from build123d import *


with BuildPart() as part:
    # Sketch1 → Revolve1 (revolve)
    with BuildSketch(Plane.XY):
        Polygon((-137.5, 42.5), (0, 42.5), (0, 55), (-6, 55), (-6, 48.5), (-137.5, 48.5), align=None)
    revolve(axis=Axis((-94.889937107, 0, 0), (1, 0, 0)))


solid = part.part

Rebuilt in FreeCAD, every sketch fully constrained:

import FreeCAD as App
import Part
import Sketcher

V = App.Vector

doc = App.newDocument("Part")
params = doc.addObject("Spreadsheet::Sheet", "Params")
for row, (alias, value) in enumerate([
    ("sketch1_width", "6 mm"),
    ("sketch1_width2", "137.5 mm"),
    ("sketch1_height", "12.5 mm"),
    ("revolution_angle", "360 deg"),
], start=1):
    params.set(f"A{row}", alias)
    params.set(f"B{row}", "=" + value)
    params.setAlias(f"B{row}", alias)

body = doc.addObject("PartDesign::Body", "Body")

# Sketch on XY plane
sketch1 = doc.addObject("Sketcher::SketchObject", "Sketch")
body.addObject(sketch1)
sketch1.AttachmentSupport = (doc.XY_Plane, [""])
sketch1.MapMode = "FlatFace"
sketch1.addGeometry([
    Part.LineSegment(V(-138, 42, 0), V(0, 42, 0)),  # 0
    Part.LineSegment(V(0, 42, 0), V(0, 55, 0)),  # 1
    Part.LineSegment(V(0, 55, 0), V(-6, 55, 0)),  # 2
    Part.LineSegment(V(-6, 55, 0), V(-6, 48, 0)),  # 3
    Part.LineSegment(V(-6, 48, 0), V(-138, 48, 0)),  # 4
    Part.LineSegment(V(-138, 48, 0), V(-138, 42, 0)),  # 5
], False)
sketch1.addConstraint([
    Sketcher.Constraint("Coincident", 0, 2, 1, 1),
    Sketcher.Constraint("Coincident", 1, 2, 2, 1),
    Sketcher.Constraint("Coincident", 2, 2, 3, 1),
    Sketcher.Constraint("Coincident", 3, 2, 4, 1),
    Sketcher.Constraint("Coincident", 4, 2, 5, 1),
    Sketcher.Constraint("Coincident", 5, 2, 0, 1),
    Sketcher.Constraint("Horizontal", 0),
    Sketcher.Constraint("Vertical", 1),
    Sketcher.Constraint("Horizontal", 2),
    Sketcher.Constraint("Vertical", 3),
    Sketcher.Constraint("Horizontal", 4),
    Sketcher.Constraint("Vertical", 5),
    Sketcher.Constraint("PointOnObject", 0, 2, -2),
    Sketcher.Constraint("Equal", 2, 5),
    Sketcher.Constraint("DistanceX", 2, 2, 2, 1, 6.0),
    Sketcher.Constraint("DistanceX", 0, 1, 0, 2, 137.5),
    Sketcher.Constraint("DistanceY", 1, 1, 1, 2, 12.5),
    Sketcher.Constraint("DistanceY", -1, 1, 1, 2, 55.0),
])
sketch1.setExpression("Constraints[14]", "Params.sketch1_width")
sketch1.setExpression("Constraints[15]", "Params.sketch1_width2")
sketch1.setExpression("Constraints[16]", "Params.sketch1_height")
revolution = doc.addObject("PartDesign::Revolution", "Revolution")
body.addObject(revolution)
revolution.Profile = sketch1
revolution.ReferenceAxis = (sketch1, ["H_Axis"])
revolution.setExpression("Angle", "Params.revolution_angle")

doc.recompute()
